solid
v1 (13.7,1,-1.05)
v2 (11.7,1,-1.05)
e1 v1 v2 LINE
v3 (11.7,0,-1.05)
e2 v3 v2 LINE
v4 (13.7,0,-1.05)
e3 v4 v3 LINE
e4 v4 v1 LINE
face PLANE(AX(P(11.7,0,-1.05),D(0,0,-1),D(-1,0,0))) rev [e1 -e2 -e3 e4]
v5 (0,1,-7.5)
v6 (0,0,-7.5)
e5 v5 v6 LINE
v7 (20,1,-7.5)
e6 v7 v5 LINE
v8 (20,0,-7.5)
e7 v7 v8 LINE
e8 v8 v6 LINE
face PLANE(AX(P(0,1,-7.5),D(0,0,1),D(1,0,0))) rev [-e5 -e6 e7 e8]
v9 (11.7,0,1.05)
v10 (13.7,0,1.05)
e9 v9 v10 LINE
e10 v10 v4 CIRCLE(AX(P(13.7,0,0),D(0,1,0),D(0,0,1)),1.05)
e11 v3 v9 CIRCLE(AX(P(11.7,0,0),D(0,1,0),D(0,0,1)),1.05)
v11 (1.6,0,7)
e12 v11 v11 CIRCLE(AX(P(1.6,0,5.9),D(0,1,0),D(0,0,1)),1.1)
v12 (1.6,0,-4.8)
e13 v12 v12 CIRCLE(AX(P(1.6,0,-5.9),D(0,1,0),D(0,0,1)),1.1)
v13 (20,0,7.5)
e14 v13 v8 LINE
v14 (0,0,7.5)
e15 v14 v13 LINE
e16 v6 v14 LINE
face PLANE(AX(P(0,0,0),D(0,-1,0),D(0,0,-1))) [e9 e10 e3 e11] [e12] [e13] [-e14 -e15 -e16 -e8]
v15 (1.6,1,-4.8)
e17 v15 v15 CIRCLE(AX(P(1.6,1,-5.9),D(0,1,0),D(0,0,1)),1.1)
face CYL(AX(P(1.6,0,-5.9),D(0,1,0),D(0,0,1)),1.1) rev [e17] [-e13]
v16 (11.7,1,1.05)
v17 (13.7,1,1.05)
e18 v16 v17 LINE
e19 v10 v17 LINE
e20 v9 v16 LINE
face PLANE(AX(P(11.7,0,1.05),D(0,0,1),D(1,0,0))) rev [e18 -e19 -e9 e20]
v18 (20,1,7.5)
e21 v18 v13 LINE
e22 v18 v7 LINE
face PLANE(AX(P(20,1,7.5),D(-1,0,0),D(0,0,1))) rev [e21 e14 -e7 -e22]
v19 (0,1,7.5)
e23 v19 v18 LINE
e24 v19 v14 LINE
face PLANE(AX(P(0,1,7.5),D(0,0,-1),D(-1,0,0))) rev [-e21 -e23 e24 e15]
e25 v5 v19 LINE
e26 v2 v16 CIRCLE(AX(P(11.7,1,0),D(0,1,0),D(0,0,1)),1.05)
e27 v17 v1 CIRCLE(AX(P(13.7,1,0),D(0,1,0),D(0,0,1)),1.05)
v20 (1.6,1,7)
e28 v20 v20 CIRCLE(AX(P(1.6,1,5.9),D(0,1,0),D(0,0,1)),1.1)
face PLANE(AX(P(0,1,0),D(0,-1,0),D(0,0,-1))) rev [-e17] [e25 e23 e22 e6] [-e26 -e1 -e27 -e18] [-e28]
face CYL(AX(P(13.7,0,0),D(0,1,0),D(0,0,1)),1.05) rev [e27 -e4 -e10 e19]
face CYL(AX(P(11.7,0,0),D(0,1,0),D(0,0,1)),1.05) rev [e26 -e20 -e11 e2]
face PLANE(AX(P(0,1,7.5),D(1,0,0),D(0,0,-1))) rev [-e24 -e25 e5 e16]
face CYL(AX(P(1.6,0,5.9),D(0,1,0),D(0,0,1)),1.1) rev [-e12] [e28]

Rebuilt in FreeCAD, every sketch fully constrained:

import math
import FreeCAD as App
import Part
import Sketcher


def add_polygon(sketch, points):
    """Adds a closed chain of lines whose ends are joined by coincident constraints."""
    first, n = sketch.GeometryCount, len(points)
    for a, b in zip(points, points[1:] + points[:1]):
        sketch.addGeometry(Part.LineSegment(App.Vector(*a, 0), App.Vector(*b, 0)), False)
    for i in range(n):
        sketch.addConstraint(Sketcher.Constraint("Coincident", first + i, 2, first + (i + 1) % n, 1))

doc = App.newDocument("Part")
body = doc.addObject("PartDesign::Body", "Body")

sketch1 = body.newObject("Sketcher::SketchObject", "Sketch")
sketch1.AttachmentSupport = (doc.getObject("XZ_Plane"), [""])
sketch1.MapMode = "FlatFace"
add_polygon(sketch1, [(0, -8), (0, 8), (20, 8), (20, -8)])
sketch1.addConstraint(Sketcher.Constraint("Vertical", 0))
sketch1.addConstraint(Sketcher.Constraint("Horizontal", 1))
sketch1.addConstraint(Sketcher.Constraint("Vertical", 2))
sketch1.addConstraint(Sketcher.Constraint("Horizontal", 3))
sketch1.addConstraint(Sketcher.Constraint("Symmetric", 0, 2, 3, 2, -1, 1))
sketch1.addConstraint(Sketcher.Constraint("DistanceX", 1, 1, 1, 2, 20.0))
sketch1.addConstraint(Sketcher.Constraint("DistanceY", 0, 1, 0, 2, 15.0))
pad1 = body.newObject("PartDesign::Pad", "Pad")
pad1.Profile = sketch1
pad1.Length = 1
pad1.Reversed = True

sketch2 = body.newObject("Sketcher::SketchObject", "Sketch001")
sketch2.AttachmentSupport = (doc.getObject("XZ_Plane"), [""])
sketch2.MapMode = "FlatFace"
sketch2.AttachmentOffset = App.Placement(App.Vector(0, 0, -1), App.Rotation())
sketch2.addGeometry(Part.Circle(App.Vector(1.6, -5.9, 0), App.Vector(0, 0, 1), 1.1), False)
sketch2.addGeometry(Part.Circle(App.Vector(1.6, 5.9, 0), App.Vector(0, 0, 1), 1.1), False)
sketch2.addGeometry(Part.LineSegment(App.Vector(13.7, -1.1, 0), App.Vector(11.7, -1.1, 0)), False)
sketch2.addGeometry(Part.ArcOfCircle(Part.Circle(App.Vector(11.7, 0, 0), App.Vector(0, 0, 1), 1.1), math.radians(90), math.radians(270)), False)
sketch2.addGeometry(Part.LineSegment(App.Vector(11.7, 1.1, 0), App.Vector(13.7, 1.1, 0)), False)
sketch2.addGeometry(Part.ArcOfCircle(Part.Circle(App.Vector(13.7, 0, 0), App.Vector(0, 0, 1), 1.1), math.radians(-90), math.radians(90)), False)
sketch2.addConstraint(Sketcher.Constraint("Tangent", 2, 2, 3, 2))
sketch2.addConstraint(Sketcher.Constraint("Tangent", 3, 1, 4, 1))
sketch2.addConstraint(Sketcher.Constraint("Tangent", 4, 2, 5, 2))
sketch2.addConstraint(Sketcher.Constraint("Tangent", 5, 1, 2, 1))
sketch2.addConstraint(Sketcher.Constraint("Horizontal", 2))
sketch2.addConstraint(Sketcher.Constraint("Horizontal", 4))
sketch2.addConstraint(Sketcher.Constraint("Equal", 0, 1))
sketch2.addConstraint(Sketcher.Constraint("Symmetric", 0, 3, 1, 3, -1))
sketch2.addConstraint(Sketcher.Constraint("PointOnObject", 3, 3, -1))
sketch2.addConstraint(Sketcher.Constraint("Diameter", 0, 2.2))
sketch2.addConstraint(Sketcher.Constraint("DistanceX", 2, 2, 2, 1, 2.0))
sketch2.addConstraint(Sketcher.Constraint("Radius", 3, 1.05))
sketch2.addConstraint(Sketcher.Constraint("DistanceX", -1, 1, 0, 3, 1.6))
sketch2.addConstraint(Sketcher.Constraint("DistanceY", 0, 3, -1, 1, 5.9))
sketch2.addConstraint(Sketcher.Constraint("DistanceX", -1, 1, 3, 3, 11.7))
pocket1 = body.newObject("PartDesign::Pocket", "Pocket")
pocket1.Profile = sketch2
pocket1.Type = "ThroughAll"
pocket1.Reversed = True

doc.recompute()
